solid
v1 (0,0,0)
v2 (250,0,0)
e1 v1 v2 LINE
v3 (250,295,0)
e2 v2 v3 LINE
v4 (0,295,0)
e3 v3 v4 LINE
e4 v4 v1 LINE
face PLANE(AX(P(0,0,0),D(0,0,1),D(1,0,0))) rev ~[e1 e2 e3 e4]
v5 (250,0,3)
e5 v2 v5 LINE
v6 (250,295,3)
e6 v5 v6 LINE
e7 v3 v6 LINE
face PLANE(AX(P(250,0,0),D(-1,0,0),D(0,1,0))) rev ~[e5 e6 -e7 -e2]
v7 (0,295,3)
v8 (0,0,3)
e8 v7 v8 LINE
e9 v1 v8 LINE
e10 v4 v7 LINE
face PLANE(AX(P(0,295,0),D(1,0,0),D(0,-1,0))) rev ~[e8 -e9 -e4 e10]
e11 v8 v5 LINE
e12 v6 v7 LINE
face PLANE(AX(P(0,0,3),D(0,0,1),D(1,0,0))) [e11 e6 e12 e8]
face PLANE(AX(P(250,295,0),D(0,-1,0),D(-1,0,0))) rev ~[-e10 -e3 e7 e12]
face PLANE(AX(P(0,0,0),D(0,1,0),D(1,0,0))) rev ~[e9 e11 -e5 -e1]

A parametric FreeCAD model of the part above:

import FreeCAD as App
import Part
import Sketcher

V = App.Vector

doc = App.newDocument("Part")
params = doc.addObject("Spreadsheet::Sheet", "Params")
for row, (alias, value) in enumerate([
    ("sketch1_width", "250 mm"),
    ("sketch1_height", "295 mm"),
    ("pad1_length", "3 mm"),
], start=1):
    params.set(f"A{row}", alias)
    params.set(f"B{row}", "=" + value)
    params.setAlias(f"B{row}", alias)

body = doc.addObject("PartDesign::Body", "Body")

sketch1 = body.newObject("Sketcher::SketchObject", "Sketch")
sketch1.AttachmentSupport = (doc.getObject("XY_Plane"), [""])
sketch1.MapMode = "FlatFace"
sketch1.addGeometry(Part.LineSegment(V(0, 295, 0), V(0, 0, 0)), False)
sketch1.addGeometry(Part.LineSegment(V(0, 0, 0), V(250, 0, 0)), False)
sketch1.addGeometry(Part.LineSegment(V(250, 0, 0), V(250, 295, 0)), False)
sketch1.addGeometry(Part.LineSegment(V(250, 295, 0), V(0, 295, 0)), False)
sketch1.addConstraint(Sketcher.Constraint("Coincident", 0, 2, 1, 1))
sketch1.addConstraint(Sketcher.Constraint("Coincident", 1, 2, 2, 1))
sketch1.addConstraint(Sketcher.Constraint("Coincident", 2, 2, 3, 1))
sketch1.addConstraint(Sketcher.Constraint("Coincident", 3, 2, 0, 1))
sketch1.addConstraint(Sketcher.Constraint("Vertical", 0))
sketch1.addConstraint(Sketcher.Constraint("Horizontal", 1))
sketch1.addConstraint(Sketcher.Constraint("Vertical", 2))
sketch1.addConstraint(Sketcher.Constraint("Horizontal", 3))
sketch1.addConstraint(Sketcher.Constraint("Coincident", 0, 2, -1, 1))
sketch1.addConstraint(Sketcher.Constraint("DistanceX", 1, 1, 1, 2, 250.0))
sketch1.addConstraint(Sketcher.Constraint("DistanceY", 0, 2, 0, 1, 295.0))
sketch1.setExpression("Constraints[9]", "Params.sketch1_width")
sketch1.setExpression("Constraints[10]", "Params.sketch1_height")
pad1 = body.newObject("PartDesign::Pad", "Pad")
pad1.Profile = sketch1
pad1.setExpression("Length", "Params.pad1_length")

doc.recompute()
